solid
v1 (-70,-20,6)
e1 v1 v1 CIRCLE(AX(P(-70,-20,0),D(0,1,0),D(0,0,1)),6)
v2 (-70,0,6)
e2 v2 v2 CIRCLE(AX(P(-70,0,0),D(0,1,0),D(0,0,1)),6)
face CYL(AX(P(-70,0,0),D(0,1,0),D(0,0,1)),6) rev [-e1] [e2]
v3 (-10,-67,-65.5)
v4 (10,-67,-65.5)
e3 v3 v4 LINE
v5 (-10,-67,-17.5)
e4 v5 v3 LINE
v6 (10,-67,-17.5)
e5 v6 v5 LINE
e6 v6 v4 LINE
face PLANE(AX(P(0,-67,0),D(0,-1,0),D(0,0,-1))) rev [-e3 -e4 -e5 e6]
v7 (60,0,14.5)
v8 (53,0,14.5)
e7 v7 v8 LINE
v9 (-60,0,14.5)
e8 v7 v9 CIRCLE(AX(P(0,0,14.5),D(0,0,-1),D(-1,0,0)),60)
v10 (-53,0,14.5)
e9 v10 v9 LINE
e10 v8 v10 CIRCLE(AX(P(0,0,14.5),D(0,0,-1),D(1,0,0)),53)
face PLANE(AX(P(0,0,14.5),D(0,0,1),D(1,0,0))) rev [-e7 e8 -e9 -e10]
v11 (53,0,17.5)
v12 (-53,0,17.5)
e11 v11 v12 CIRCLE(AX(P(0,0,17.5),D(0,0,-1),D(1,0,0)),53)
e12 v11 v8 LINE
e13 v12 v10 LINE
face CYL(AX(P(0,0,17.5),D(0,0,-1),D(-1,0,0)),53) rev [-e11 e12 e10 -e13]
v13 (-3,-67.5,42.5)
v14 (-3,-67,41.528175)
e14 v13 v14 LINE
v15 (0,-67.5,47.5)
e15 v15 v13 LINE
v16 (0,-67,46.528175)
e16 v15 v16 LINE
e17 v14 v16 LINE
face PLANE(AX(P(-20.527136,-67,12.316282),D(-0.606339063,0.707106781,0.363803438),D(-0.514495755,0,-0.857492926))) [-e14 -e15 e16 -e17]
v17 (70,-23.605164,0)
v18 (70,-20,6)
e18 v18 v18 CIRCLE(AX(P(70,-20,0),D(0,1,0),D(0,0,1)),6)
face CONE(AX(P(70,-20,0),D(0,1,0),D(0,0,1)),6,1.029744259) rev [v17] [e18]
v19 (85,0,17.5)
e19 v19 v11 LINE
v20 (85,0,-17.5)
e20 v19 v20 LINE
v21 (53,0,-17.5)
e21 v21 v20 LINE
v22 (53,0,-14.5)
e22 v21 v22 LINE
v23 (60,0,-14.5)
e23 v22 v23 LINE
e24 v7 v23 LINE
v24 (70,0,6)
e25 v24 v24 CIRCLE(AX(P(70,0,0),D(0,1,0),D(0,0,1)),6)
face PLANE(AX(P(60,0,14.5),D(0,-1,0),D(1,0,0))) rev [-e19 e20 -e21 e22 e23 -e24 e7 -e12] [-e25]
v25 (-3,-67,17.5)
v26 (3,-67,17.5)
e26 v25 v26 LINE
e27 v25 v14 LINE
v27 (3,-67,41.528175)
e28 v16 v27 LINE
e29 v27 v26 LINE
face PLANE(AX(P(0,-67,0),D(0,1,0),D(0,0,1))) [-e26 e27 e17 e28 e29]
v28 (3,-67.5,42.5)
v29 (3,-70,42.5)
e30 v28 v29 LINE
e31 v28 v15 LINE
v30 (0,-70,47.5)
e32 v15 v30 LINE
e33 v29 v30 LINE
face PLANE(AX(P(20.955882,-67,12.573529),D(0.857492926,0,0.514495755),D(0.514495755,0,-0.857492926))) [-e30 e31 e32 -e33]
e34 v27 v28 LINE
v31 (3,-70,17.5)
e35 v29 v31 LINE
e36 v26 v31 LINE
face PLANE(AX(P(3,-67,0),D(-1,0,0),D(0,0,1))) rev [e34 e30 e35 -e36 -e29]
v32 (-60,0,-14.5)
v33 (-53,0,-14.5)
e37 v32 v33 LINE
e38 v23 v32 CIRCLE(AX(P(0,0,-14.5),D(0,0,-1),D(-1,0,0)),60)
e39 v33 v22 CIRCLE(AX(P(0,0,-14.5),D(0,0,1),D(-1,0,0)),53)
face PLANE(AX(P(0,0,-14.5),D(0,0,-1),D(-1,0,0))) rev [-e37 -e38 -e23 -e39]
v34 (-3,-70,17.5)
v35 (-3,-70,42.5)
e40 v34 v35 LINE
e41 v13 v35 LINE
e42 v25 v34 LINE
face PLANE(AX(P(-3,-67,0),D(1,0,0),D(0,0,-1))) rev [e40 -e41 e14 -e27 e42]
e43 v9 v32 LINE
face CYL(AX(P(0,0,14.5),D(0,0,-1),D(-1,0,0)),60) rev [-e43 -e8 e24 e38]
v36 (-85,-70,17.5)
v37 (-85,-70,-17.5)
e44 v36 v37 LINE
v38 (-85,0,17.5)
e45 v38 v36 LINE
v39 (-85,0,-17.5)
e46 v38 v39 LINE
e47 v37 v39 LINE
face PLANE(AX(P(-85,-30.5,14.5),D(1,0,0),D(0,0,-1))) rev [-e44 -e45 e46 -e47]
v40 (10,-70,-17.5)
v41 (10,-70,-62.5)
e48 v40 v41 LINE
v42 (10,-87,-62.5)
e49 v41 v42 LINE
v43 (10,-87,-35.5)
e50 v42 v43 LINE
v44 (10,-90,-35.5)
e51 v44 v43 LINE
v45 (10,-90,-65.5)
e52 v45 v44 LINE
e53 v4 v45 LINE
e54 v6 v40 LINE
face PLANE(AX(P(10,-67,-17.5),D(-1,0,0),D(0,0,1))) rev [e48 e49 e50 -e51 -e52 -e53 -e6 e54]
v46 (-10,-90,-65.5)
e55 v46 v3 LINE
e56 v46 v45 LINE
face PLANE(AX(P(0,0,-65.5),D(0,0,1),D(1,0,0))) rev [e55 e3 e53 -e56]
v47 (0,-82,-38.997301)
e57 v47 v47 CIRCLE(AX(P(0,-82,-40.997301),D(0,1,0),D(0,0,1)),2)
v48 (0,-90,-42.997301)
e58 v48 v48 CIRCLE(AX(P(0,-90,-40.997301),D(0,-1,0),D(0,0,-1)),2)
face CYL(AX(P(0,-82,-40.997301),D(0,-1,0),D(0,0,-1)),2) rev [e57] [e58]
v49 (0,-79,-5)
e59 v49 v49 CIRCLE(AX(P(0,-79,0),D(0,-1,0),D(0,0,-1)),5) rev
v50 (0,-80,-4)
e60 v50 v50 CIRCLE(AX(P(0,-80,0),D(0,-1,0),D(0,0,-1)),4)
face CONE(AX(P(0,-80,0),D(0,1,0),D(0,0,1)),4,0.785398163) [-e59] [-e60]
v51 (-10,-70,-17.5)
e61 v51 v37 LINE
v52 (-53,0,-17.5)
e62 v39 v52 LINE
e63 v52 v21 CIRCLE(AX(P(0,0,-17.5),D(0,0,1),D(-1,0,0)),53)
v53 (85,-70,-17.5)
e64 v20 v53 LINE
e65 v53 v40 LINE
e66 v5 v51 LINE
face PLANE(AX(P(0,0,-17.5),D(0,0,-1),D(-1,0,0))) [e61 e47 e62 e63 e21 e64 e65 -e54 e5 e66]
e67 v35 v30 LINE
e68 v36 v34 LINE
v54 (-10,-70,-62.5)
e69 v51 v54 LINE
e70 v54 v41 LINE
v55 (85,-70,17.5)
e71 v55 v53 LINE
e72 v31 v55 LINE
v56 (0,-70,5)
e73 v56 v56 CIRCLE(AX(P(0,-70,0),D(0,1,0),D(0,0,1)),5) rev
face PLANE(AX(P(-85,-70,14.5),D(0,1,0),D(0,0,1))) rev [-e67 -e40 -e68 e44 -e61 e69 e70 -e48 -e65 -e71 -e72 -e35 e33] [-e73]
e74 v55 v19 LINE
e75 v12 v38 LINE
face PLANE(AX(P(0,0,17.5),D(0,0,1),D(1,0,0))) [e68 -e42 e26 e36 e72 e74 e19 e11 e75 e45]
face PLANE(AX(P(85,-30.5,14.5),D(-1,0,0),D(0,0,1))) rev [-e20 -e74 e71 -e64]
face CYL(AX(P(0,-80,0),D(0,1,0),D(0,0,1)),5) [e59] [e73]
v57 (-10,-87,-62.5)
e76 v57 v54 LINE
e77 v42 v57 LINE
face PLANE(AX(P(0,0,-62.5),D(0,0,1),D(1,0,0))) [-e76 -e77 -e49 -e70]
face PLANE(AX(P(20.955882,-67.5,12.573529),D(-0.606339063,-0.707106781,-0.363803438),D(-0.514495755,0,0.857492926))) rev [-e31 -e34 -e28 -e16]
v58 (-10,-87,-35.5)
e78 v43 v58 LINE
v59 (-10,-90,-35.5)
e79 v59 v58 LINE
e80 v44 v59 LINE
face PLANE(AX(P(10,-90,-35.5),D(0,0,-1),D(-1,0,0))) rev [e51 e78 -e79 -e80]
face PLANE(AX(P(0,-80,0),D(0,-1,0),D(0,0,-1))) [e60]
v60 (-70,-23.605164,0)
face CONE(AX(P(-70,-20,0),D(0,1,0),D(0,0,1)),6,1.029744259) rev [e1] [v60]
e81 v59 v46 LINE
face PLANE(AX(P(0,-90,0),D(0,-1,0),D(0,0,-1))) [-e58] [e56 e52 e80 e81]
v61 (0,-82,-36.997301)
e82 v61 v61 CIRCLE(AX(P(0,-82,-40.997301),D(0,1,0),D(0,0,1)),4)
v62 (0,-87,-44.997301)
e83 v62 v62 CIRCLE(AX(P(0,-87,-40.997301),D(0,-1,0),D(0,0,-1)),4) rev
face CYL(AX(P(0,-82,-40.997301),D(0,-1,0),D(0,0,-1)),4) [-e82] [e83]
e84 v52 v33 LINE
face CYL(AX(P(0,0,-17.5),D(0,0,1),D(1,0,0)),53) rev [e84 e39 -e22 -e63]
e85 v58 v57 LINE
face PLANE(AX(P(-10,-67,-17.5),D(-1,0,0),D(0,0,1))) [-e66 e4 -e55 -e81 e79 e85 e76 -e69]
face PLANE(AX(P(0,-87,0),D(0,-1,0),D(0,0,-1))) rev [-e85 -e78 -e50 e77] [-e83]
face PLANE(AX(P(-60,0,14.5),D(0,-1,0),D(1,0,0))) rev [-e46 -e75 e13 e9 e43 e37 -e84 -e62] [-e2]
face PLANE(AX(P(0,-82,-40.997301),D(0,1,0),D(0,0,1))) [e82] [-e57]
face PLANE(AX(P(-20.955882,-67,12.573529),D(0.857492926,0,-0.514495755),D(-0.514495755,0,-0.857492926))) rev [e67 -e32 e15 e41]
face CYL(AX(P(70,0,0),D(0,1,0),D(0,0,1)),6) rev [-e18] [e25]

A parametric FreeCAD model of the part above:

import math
import FreeCAD as App
import Part
import Sketcher
from FreeCAD import Vector
Q = App.Units.Quantity


def edges_at(feature, points):
    """Names of the edges that pass closest to the given points."""
    edges = feature.Shape.Edges
    near = lambda p: min(range(len(edges)), key=lambda i: edges[i].distToShape(Part.Vertex(*p))[0])
    return sorted({f"Edge{near(p) + 1}" for p in points})


def add_polygon(sketch, points):
    """Adds a closed chain of lines whose ends are joined by coincident constraints."""
    first, n = sketch.GeometryCount, len(points)
    for a, b in zip(points, points[1:] + points[:1]):
        sketch.addGeometry(Part.LineSegment(App.Vector(*a, 0), App.Vector(*b, 0)), False)
    for i in range(n):
        sketch.addConstraint(Sketcher.Constraint("Coincident", first + i, 2, first + (i + 1) % n, 1))

doc = App.newDocument("Part")
body = doc.addObject("PartDesign::Body", "Body")

# Sketch on XY plane
sketch1 = body.newObject("Sketcher::SketchObject", "Sketch")
sketch1.AttachmentSupport = (doc.getObject("XY_Plane"), [""])
sketch1.MapMode = "FlatFace"
sketch1.addGeometry([
    Part.LineSegment(Vector(-60, 0, 0), Vector(-85, 0, 0)),  # 0
    Part.LineSegment(Vector(-85, 0, 0), Vector(-85, -70, 0)),  # 1
    Part.LineSegment(Vector(-85, -70, 0), Vector(85, -70, 0)),  # 2
    Part.LineSegment(Vector(85, -70, 0), Vector(85, 0, 0)),  # 3
    Part.LineSegment(Vector(85, 0, 0), Vector(60, 0, 0)),  # 4
    Part.ArcOfCircle(Part.Circle(Vector(0, 0, 0), Vector(0, 0, 1), 60), math.radians(180), math.radians(360)),  # 5
], False)
sketch1.addConstraint([
    Sketcher.Constraint("Coincident", 0, 2, 1, 1),
    Sketcher.Constraint("Coincident", 1, 2, 2, 1),
    Sketcher.Constraint("Coincident", 2, 2, 3, 1),
    Sketcher.Constraint("Coincident", 3, 2, 4, 1),
    Sketcher.Constraint("Coincident", 4, 2, 5, 2),
    Sketcher.Constraint("Coincident", 5, 1, 0, 1),
    Sketcher.Constraint("Horizontal", 0),
    Sketcher.Constraint("Vertical", 1),
    Sketcher.Constraint("Horizontal", 2),
    Sketcher.Constraint("Vertical", 3),
    Sketcher.Constraint("Horizontal", 4),
    Sketcher.Constraint("Coincident", 5, 3, -1, 1),
    Sketcher.Constraint("Symmetric", 0, 2, 3, 2, -1, 1),
    Sketcher.Constraint("PointOnObject", 0, 2, -1),
    Sketcher.Constraint("Radius", 5, Q("60 mm")),
    Sketcher.Constraint("DistanceX", 0, 2, 0, 1, Q("25 mm")),
    Sketcher.Constraint("DistanceY", 1, 2, 1, 1, Q("70 mm")),
])
pad1 = body.newObject("PartDesign::Pad", "Pad")
pad1.Profile = sketch1
pad1.Length = 29
pad1.Midplane = True

# Sketch on XZ plane
sketch2 = body.newObject("Sketcher::SketchObject", "Sketch001")
sketch2.AttachmentSupport = (doc.getObject("XZ_Plane"), [""])
sketch2.MapMode = "FlatFace"
sketch2.addGeometry([
    Part.Circle(Vector(-70, 0, 0), Vector(0, 0, 1), 6),
    Part.Circle(Vector(70, 0, 0), Vector(0, 0, 1), 6),
], False)
sketch2.addConstraint([
    Sketcher.Constraint("Equal", 0, 1),
    Sketcher.Constraint("Symmetric", 0, 3, 1, 3, -1, 1),
    Sketcher.Constraint("PointOnObject", 0, 3, -1),
    Sketcher.Constraint("Diameter", 0, Q("12 mm")),
    Sketcher.Constraint("DistanceX", 0, 3, -1, 1, Q("70 mm")),
])
doc.recompute()
hole = body.newObject("PartDesign::Hole", "Hole")
hole.Profile = sketch2
hole.ThreadType = "None"
hole.Diameter = 12
hole.DepthType = "Dimension"
hole.Depth = 20
hole.DrillPoint = "Angled"
hole.DrillPointAngle = 118
hole.Reversed = True

# Sketch on XY plane
sketch3 = body.newObject("Sketcher::SketchObject", "Sketch002")
sketch3.AttachmentSupport = (doc.getObject("XY_Plane"), [""])
sketch3.MapMode = "FlatFace"
sketch3.AttachmentOffset = App.Placement(Vector(0, 0, -14.5), App.Rotation())
sketch3.addGeometry([
    Part.LineSegment(Vector(53, 0, 0), Vector(85, 0, 0)),  # 0
    Part.LineSegment(Vector(85, 0, 0), Vector(85, -70, 0)),  # 1
    Part.LineSegment(Vector(85, -70, 0), Vector(-85, -70, 0)),  # 2
    Part.LineSegment(Vector(-85, -70, 0), Vector(-85, 0, 0)),  # 3
    Part.LineSegment(Vector(-85, 0, 0), Vector(-53, 0, 0)),  # 4
    Part.ArcOfCircle(Part.Circle(Vector(0, 0, 0), Vector(0, 0, 1), 53), math.radians(180), math.radians(360)),  # 5
], False)
sketch3.addConstraint([
    Sketcher.Constraint("Coincident", 0, 2, 1, 1),
    Sketcher.Constraint("Coincident", 1, 2, 2, 1),
    Sketcher.Constraint("Coincident", 2, 2, 3, 1),
    Sketcher.Constraint("Coincident", 3, 2, 4, 1),
    Sketcher.Constraint("Coincident", 4, 2, 5, 1),
    Sketcher.Constraint("Coincident", 5, 2, 0, 1),
    Sketcher.Constraint("Horizontal", 0),
    Sketcher.Constraint("Vertical", 1),
    Sketcher.Constraint("Horizontal", 2),
    Sketcher.Constraint("Vertical", 3),
    Sketcher.Constraint("Horizontal", 4),
    Sketcher.Constraint("Coincident", 5, 3, -1, 1),
    Sketcher.Constraint("Symmetric", 0, 2, 3, 2, -1, 1),
    Sketcher.Constraint("PointOnObject", 0, 2, -1),
    Sketcher.Constraint("Radius", 5, Q("53 mm")),
    Sketcher.Constraint("DistanceX", 0, 1, 0, 2, Q("32 mm")),
    Sketcher.Constraint("DistanceY", 1, 2, 1, 1, Q("70 mm")),
])
pad2 = body.newObject("PartDesign::Pad", "Pad001")
pad2.Profile = sketch3
pad2.Length = 3
pad2.Reversed = True

# Sketch on XY plane
sketch4 = body.newObject("Sketcher::SketchObject", "Sketch003")
sketch4.AttachmentSupport = (doc.getObject("XY_Plane"), [""])
sketch4.MapMode = "FlatFace"
sketch4.AttachmentOffset = App.Placement(Vector(0, 0, 17.5), App.Rotation())
sketch4.addGeometry([
    Part.LineSegment(Vector(-53, 0, 0), Vector(-85, 0, 0)),  # 0
    Part.LineSegment(Vector(-85, 0, 0), Vector(-85, -70, 0)),  # 1
    Part.LineSegment(Vector(-85, -70, 0), Vector(85, -70, 0)),  # 2
    Part.LineSegment(Vector(85, -70, 0), Vector(85, 0, 0)),  # 3
    Part.LineSegment(Vector(85, 0, 0), Vector(53, 0, 0)),  # 4
    Part.ArcOfCircle(Part.Circle(Vector(0, 0, 0), Vector(0, 0, 1), 53), math.radians(180), math.radians(360)),  # 5
], False)
sketch4.addConstraint([
    Sketcher.Constraint("Coincident", 0, 2, 1, 1),
    Sketcher.Constraint("Coincident", 1, 2, 2, 1),
    Sketcher.Constraint("Coincident", 2, 2, 3, 1),
    Sketcher.Constraint("Coincident", 3, 2, 4, 1),
    Sketcher.Constraint("Coincident", 4, 2, 5, 2),
    Sketcher.Constraint("Coincident", 5, 1, 0, 1),
    Sketcher.Constraint("Horizontal", 0),
    Sketcher.Constraint("Vertical", 1),
    Sketcher.Constraint("Horizontal", 2),
    Sketcher.Constraint("Vertical", 3),
    Sketcher.Constraint("Horizontal", 4),
    Sketcher.Constraint("Coincident", 5, 3, -1, 1),
    Sketcher.Constraint("Symmetric", 0, 2, 3, 2, -1, 1),
    Sketcher.Constraint("PointOnObject", 0, 2, -1),
    Sketcher.Constraint("Radius", 5, Q("53 mm")),
    Sketcher.Constraint("DistanceX", 0, 2, 0, 1, Q("32 mm")),
    Sketcher.Constraint("DistanceY", 1, 2, 1, 1, Q("70 mm")),
])
pad3 = body.newObject("PartDesign::Pad", "Pad002")
pad3.Profile = sketch4
pad3.Length = 3
pad3.Reversed = True

# Sketch on XZ plane
sketch5 = body.newObject("Sketcher::SketchObject", "Sketch004")
sketch5.AttachmentSupport = (doc.getObject("XZ_Plane"), [""])
sketch5.MapMode = "FlatFace"
sketch5.AttachmentOffset = App.Placement(Vector(0, 0, 70), App.Rotation())
add_polygon(sketch5, [(-10, -18), (10, -18), (10, -62), (-10, -62)])  # lines 0-3
sketch5.addConstraint([
    Sketcher.Constraint("Horizontal", 0),
    Sketcher.Constraint("Vertical", 1),
    Sketcher.Constraint("Horizontal", 2),
    Sketcher.Constraint("Vertical", 3),
    Sketcher.Constraint("DistanceX", 0, 1, 0, 2, Q("20 mm")),
    Sketcher.Constraint("DistanceY", 1, 2, 1, 1, Q("45 mm")),
    Sketcher.Constraint("DistanceX", -1, 1, 0, 2, Q("10 mm")),
    Sketcher.Constraint("DistanceY", 0, 2, -1, 1, Q("17.5 mm")),
])
pad4 = body.newObject("PartDesign::Pad", "Pad003")
pad4.Profile = sketch5
pad4.Length = 3
pad4.Reversed = True

# Sketch on XY plane
sketch6 = body.newObject("Sketcher::SketchObject", "Sketch005")
sketch6.AttachmentSupport = (doc.getObject("XY_Plane"), [""])
sketch6.MapMode = "FlatFace"
sketch6.AttachmentOffset = App.Placement(Vector(0, 0, -62.5), App.Rotation())
add_polygon(sketch6, [(10, -67), (10, -87), (-10, -87), (-10, -67)])  # lines 0-3
sketch6.addConstraint([
    Sketcher.Constraint("Vertical", 0),
    Sketcher.Constraint("Horizontal", 1),
    Sketcher.Constraint("Vertical", 2),
    Sketcher.Constraint("Horizontal", 3),
    Sketcher.Constraint("Equal", 3, 0),
    Sketcher.Constraint("DistanceX", 1, 2, 1, 1, Q("20 mm")),
    Sketcher.Constraint("DistanceX", -1, 1, 0, 2, Q("10 mm")),
    Sketcher.Constraint("DistanceY", 0, 2, -1, 1, Q("87 mm")),
])
pad5 = body.newObject("PartDesign::Pad", "Pad004")
pad5.Profile = sketch6
pad5.Length = 3
pad5.Reversed = True

# Sketch on XZ plane
sketch7 = body.newObject("Sketcher::SketchObject", "Sketch006")
sketch7.AttachmentSupport = (doc.getObject("XZ_Plane"), [""])
sketch7.MapMode = "FlatFace"
sketch7.AttachmentOffset = App.Placement(Vector(0, 0, 87), App.Rotation())
add_polygon(sketch7, [(-10, -36), (-10, -66), (10, -66), (10, -36)])  # lines 0-3
sketch7.addConstraint([
    Sketcher.Constraint("Vertical", 0),
    Sketcher.Constraint("Horizontal", 1),
    Sketcher.Constraint("Vertical", 2),
    Sketcher.Constraint("Horizontal", 3),
    Sketcher.Constraint("DistanceX", 1, 1, 1, 2, Q("20 mm")),
    Sketcher.Constraint("DistanceY", 0, 2, 0, 1, Q("30 mm")),
    Sketcher.Constraint("DistanceX", 0, 2, -1, 1, Q("10 mm")),
    Sketcher.Constraint("DistanceY", 0, 2, -1, 1, Q("65.5 mm")),
])
pad6 = body.newObject("PartDesign::Pad", "Pad005")
pad6.Profile = sketch7
pad6.Length = 3

# Sketch on XZ plane
sketch8 = body.newObject("Sketcher::SketchObject", "Sketch007")
sketch8.AttachmentSupport = (doc.getObject("XZ_Plane"), [""])
sketch8.MapMode = "FlatFace"
sketch8.AttachmentOffset = App.Placement(Vector(0, 0, 90), App.Rotation())
sketch8.addGeometry(Part.Circle(Vector(0, -41, 0), Vector(0, 0, 1), 2), False)
sketch8.addConstraint([
    Sketcher.Constraint("PointOnObject", 0, 3, -2),
    Sketcher.Constraint("Diameter", 0, Q("4 mm")),
    Sketcher.Constraint("DistanceY", 0, 3, -1, 1, Q("40.997301 mm")),
])
pocket1 = body.newObject("PartDesign::Pocket", "Pocket")
pocket1.Profile = sketch8
pocket1.Length = 8

# Sketch on XZ plane
sketch9 = body.newObject("Sketcher::SketchObject", "Sketch008")
sketch9.AttachmentSupport = (doc.getObject("XZ_Plane"), [""])
sketch9.MapMode = "FlatFace"
sketch9.AttachmentOffset = App.Placement(Vector(0, 0, 87), App.Rotation())
sketch9.addGeometry(Part.Circle(Vector(0, -41, 0), Vector(0, 0, 1), 4), False)
sketch9.addConstraint([
    Sketcher.Constraint("PointOnObject", 0, 3, -2),
    Sketcher.Constraint("Diameter", 0, Q("8 mm")),
    Sketcher.Constraint("DistanceY", 0, 3, -1, 1, Q("40.997301 mm")),
])
pad7 = body.newObject("PartDesign::Pad", "Pad006")
pad7.Profile = sketch9
pad7.Length = 5
pad7.Reversed = True

# Sketch on XZ plane
sketch10 = body.newObject("Sketcher::SketchObject", "Sketch009")
sketch10.AttachmentSupport = (doc.getObject("XZ_Plane"), [""])
sketch10.MapMode = "FlatFace"
sketch10.AttachmentOffset = App.Placement(Vector(0, 0, 87), App.Rotation())
sketch10.addGeometry(Part.Circle(Vector(0, -41, 0), Vector(0, 0, 1), 2), False)
sketch10.addConstraint([
    Sketcher.Constraint("PointOnObject", 0, 3, -2),
    Sketcher.Constraint("Diameter", 0, Q("4 mm")),
    Sketcher.Constraint("DistanceY", 0, 3, -1, 1, Q("40.997301 mm")),
])
pocket2 = body.newObject("PartDesign::Pocket", "Pocket001")
pocket2.Profile = sketch10
pocket2.Length = 5

# Sketch on XZ plane
sketch11 = body.newObject("Sketcher::SketchObject", "Sketch010")
sketch11.AttachmentSupport = (doc.getObject("XZ_Plane"), [""])
sketch11.MapMode = "FlatFace"
sketch11.AttachmentOffset = App.Placement(Vector(0, 0, 70), App.Rotation())
add_polygon(sketch11, [(3, 18), (-3, 18), (-3, 42), (0, 48), (3, 42)])  # lines 0-4
sketch11.addConstraint([
    Sketcher.Constraint("Horizontal", 0),
    Sketcher.Constraint("Vertical", 1),
    Sketcher.Constraint("Vertical", 4),
    Sketcher.Constraint("Symmetric", 1, 2, 3, 2, -2),
    Sketcher.Constraint("PointOnObject", 2, 2, -2),
    Sketcher.Constraint("DistanceX", 0, 2, 0, 1, Q("6 mm")),
    Sketcher.Constraint("DistanceY", 1, 1, 1, 2, Q("25 mm")),
    Sketcher.Constraint("DistanceY", 1, 2, 2, 2, Q("5 mm")),
    Sketcher.Constraint("DistanceY", -1, 1, 0, 2, Q("17.5 mm")),
])
pad8 = body.newObject("PartDesign::Pad", "Pad007")
pad8.Profile = sketch11
pad8.Length = 3
pad8.Reversed = True
doc.recompute()

chamfer = body.newObject("PartDesign::Chamfer", "Chamfer")
chamfer.Base = (pad8, edges_at(pad8, [(1.5, -67, 45), (-1.5, -67, 45)]))
chamfer.Size = 0.5

# Sketch on XZ plane
sketch12 = body.newObject("Sketcher::SketchObject", "Sketch011")
sketch12.AttachmentSupport = (doc.getObject("XZ_Plane"), [""])
sketch12.MapMode = "FlatFace"
sketch12.AttachmentOffset = App.Placement(Vector(0, 0, 70), App.Rotation())
sketch12.addGeometry(Part.Circle(Vector(0, 0, 0), Vector(0, 0, 1), 5), False)
sketch12.addConstraint([
    Sketcher.Constraint("Coincident", 0, 3, -1, 1),
    Sketcher.Constraint("Diameter", 0, Q("10 mm")),
])
pad9 = body.newObject("PartDesign::Pad", "Pad008")
pad9.Profile = sketch12
pad9.Length = 10
doc.recompute()

chamfer2 = body.newObject("PartDesign::Chamfer", "Chamfer001")
chamfer2.Base = (pad9, edges_at(pad9, [(0, -80, -5)]))
chamfer2.Size = 1

doc.recompute()
